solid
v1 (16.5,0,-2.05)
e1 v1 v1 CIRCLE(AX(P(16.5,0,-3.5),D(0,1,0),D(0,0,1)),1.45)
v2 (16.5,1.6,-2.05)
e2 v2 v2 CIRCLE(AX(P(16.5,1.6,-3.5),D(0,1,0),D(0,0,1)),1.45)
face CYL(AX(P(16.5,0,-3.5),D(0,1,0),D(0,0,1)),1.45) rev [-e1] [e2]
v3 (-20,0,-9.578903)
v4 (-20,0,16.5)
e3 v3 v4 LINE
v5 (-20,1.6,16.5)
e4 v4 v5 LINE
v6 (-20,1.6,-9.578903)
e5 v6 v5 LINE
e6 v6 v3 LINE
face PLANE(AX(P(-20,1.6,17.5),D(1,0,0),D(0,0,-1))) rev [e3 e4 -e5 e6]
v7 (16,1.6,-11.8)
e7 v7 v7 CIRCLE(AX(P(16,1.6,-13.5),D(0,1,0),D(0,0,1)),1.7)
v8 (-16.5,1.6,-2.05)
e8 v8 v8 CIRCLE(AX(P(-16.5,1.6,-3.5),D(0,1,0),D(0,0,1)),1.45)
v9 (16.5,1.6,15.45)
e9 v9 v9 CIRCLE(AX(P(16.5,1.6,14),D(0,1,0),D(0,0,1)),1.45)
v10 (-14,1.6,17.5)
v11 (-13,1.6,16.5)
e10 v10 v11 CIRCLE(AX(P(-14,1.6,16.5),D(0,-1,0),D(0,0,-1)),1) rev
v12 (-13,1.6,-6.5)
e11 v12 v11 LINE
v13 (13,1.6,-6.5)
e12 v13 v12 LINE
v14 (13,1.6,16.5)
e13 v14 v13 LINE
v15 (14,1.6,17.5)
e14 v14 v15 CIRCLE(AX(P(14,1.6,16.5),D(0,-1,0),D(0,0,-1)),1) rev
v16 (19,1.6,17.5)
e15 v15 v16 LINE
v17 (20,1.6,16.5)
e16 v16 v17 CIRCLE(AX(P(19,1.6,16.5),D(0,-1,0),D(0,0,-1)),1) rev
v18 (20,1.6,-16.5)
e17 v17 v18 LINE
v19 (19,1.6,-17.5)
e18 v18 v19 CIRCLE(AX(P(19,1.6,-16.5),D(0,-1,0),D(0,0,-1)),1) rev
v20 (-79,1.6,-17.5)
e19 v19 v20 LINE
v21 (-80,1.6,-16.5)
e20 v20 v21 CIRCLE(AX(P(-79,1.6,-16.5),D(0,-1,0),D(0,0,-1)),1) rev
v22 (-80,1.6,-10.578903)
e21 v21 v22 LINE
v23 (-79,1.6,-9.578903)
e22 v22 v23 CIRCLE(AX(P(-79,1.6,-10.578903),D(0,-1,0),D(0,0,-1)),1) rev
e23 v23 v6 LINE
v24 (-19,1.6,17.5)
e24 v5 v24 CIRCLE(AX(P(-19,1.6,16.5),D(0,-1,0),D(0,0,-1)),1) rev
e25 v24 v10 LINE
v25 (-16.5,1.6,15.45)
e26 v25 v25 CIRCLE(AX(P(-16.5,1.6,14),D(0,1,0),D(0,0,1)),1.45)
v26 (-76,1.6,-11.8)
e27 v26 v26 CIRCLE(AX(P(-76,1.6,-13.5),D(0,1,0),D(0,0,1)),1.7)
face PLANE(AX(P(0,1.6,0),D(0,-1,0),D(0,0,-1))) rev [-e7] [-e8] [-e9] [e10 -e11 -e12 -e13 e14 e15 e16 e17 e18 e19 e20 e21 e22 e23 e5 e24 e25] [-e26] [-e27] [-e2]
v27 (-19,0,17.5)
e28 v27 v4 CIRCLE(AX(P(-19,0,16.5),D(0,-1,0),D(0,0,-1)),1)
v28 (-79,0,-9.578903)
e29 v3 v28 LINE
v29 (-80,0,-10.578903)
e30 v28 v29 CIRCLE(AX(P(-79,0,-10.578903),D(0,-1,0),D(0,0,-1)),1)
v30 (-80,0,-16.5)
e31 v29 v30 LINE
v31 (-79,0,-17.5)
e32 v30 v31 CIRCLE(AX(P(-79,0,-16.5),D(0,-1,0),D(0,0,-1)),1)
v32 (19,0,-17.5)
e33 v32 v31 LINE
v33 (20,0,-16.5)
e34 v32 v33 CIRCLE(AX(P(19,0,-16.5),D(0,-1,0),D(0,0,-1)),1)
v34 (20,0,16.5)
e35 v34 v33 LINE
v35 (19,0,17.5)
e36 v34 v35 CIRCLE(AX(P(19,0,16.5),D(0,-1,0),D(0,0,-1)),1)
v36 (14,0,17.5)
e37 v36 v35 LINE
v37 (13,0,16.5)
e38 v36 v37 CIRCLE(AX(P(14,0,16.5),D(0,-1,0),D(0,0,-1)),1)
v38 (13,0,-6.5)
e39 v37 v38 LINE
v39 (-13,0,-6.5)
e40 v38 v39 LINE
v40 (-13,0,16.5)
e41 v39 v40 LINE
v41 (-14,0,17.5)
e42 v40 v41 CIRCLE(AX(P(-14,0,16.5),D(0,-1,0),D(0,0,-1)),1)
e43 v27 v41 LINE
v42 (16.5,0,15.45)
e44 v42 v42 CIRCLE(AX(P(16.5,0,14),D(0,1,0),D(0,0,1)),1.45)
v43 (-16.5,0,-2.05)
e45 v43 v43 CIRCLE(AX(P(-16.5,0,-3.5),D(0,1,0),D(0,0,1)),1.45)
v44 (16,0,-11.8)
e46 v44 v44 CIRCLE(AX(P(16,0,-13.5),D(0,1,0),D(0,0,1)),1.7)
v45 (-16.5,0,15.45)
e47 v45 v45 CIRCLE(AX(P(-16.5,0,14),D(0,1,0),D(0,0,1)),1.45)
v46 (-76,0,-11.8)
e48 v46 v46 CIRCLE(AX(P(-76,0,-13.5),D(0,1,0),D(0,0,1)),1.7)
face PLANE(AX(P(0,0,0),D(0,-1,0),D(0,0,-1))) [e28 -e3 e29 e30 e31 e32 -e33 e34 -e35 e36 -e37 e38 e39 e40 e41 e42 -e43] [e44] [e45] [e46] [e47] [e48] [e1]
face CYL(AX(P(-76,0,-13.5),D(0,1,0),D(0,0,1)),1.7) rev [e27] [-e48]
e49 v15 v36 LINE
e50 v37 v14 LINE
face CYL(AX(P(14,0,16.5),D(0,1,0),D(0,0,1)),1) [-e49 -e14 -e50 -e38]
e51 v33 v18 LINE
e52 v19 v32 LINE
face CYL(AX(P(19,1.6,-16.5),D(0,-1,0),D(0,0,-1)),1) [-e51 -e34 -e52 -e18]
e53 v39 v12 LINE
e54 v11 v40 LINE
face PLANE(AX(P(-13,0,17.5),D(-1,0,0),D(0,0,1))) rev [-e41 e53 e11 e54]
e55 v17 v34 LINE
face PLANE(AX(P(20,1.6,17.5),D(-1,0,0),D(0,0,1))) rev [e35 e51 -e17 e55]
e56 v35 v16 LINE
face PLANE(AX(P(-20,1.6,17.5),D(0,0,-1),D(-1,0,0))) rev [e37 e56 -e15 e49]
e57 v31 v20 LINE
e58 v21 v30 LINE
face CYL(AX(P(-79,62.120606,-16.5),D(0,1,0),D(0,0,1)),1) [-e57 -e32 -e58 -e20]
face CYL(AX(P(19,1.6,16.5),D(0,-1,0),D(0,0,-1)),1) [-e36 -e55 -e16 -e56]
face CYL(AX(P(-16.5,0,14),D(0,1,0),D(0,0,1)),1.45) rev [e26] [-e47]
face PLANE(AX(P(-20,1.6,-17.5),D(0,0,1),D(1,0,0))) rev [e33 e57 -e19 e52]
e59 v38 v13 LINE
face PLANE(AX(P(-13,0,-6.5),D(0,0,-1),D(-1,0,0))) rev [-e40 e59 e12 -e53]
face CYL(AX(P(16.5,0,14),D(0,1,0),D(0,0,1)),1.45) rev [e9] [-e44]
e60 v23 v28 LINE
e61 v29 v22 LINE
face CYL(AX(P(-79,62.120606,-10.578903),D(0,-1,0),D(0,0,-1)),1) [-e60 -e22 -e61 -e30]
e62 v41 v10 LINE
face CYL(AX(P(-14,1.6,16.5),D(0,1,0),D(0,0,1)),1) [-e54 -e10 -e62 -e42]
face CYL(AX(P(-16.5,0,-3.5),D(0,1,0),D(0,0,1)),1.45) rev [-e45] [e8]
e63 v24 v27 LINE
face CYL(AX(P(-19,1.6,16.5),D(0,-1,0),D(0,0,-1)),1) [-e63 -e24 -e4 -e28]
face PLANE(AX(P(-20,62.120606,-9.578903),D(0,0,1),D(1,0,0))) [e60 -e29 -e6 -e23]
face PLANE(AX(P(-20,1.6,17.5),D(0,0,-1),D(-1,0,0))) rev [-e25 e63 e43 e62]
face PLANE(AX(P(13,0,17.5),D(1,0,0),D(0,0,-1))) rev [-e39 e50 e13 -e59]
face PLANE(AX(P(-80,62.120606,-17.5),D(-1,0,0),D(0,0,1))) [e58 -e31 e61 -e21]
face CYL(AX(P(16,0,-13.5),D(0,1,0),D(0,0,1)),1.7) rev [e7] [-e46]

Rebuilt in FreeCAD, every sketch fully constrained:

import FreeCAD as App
import Part
import Sketcher
from FreeCAD import Vector


def edges_at(feature, points):
    """Names of the edges that pass closest to the given points."""
    edges = feature.Shape.Edges
    near = lambda p: min(range(len(edges)), key=lambda i: edges[i].distToShape(Part.Vertex(*p))[0])
    return sorted({f"Edge{near(p) + 1}" for p in points})

doc = App.newDocument("Part")
body = doc.addObject("PartDesign::Body", "Body")

# Sketch on XZ plane
sketch1 = doc.addObject("Sketcher::SketchObject", "Sketch")
body.addObject(sketch1)
sketch1.AttachmentSupport = (doc.XZ_Plane, [""])
sketch1.MapMode = "FlatFace"
sketch1.addGeometry([
    Part.LineSegment(Vector(-20, -17.5, 0), Vector(-20, 17.5, 0)),
    Part.LineSegment(Vector(-20, 17.5, 0), Vector(20, 17.5, 0)),
    Part.LineSegment(Vector(20, 17.5, 0), Vector(20, -17.5, 0)),
    Part.LineSegment(Vector(20, -17.5, 0), Vector(-20, -17.5, 0)),
], False)
sketch1.addConstraint([
    Sketcher.Constraint("Coincident", 0, 2, 1, 1),
    Sketcher.Constraint("Coincident", 1, 2, 2, 1),
    Sketcher.Constraint("Coincident", 2, 2, 3, 1),
    Sketcher.Constraint("Coincident", 3, 2, 0, 1),
    Sketcher.Constraint("Vertical", 0),
    Sketcher.Constraint("Horizontal", 1),
    Sketcher.Constraint("Vertical", 2),
    Sketcher.Constraint("Horizontal", 3),
    Sketcher.Constraint("Symmetric", 0, 2, 2, 2, -1, 1),
    Sketcher.Constraint("DistanceX", 1, 1, 1, 2, 40.0),
    Sketcher.Constraint("DistanceY", 0, 1, 0, 2, 35.0),
])
pad1 = doc.addObject("PartDesign::Pad", "Pad")
body.addObject(pad1)
pad1.Profile = sketch1
pad1.Length = 1.6
pad1.Reversed = True

# Sketch on XZ plane
sketch2 = doc.addObject("Sketcher::SketchObject", "Sketch001")
body.addObject(sketch2)
sketch2.AttachmentSupport = (doc.XZ_Plane, [""])
sketch2.MapMode = "FlatFace"
sketch2.AttachmentOffset = App.Placement(Vector(0, 0, -1.6), App.Rotation())
sketch2.addGeometry([
    Part.Circle(Vector(-16.5, -3.5, 0), Vector(0, 0, 1), 1.45),  # 0
    Part.Circle(Vector(-16.5, 14, 0), Vector(0, 0, 1), 1.45),  # 1
    Part.Circle(Vector(16.5, -3.5, 0), Vector(0, 0, 1), 1.45),  # 2
    Part.Circle(Vector(16.5, 14, 0), Vector(0, 0, 1), 1.45),  # 3
    Part.LineSegment(Vector(-13, -6.5, 0), Vector(-13, 17.5, 0)),  # 4
    Part.LineSegment(Vector(-13, 17.5, 0), Vector(13, 17.5, 0)),  # 5
    Part.LineSegment(Vector(13, 17.5, 0), Vector(13, -6.5, 0)),  # 6
    Part.LineSegment(Vector(13, -6.5, 0), Vector(-13, -6.5, 0)),  # 7
], False)
sketch2.addConstraint([
    Sketcher.Constraint("Coincident", 4, 2, 5, 1),
    Sketcher.Constraint("Coincident", 5, 2, 6, 1),
    Sketcher.Constraint("Coincident", 6, 2, 7, 1),
    Sketcher.Constraint("Coincident", 7, 2, 4, 1),
    Sketcher.Constraint("Vertical", 4),
    Sketcher.Constraint("Horizontal", 5),
    Sketcher.Constraint("Vertical", 6),
    Sketcher.Constraint("Horizontal", 7),
    Sketcher.Constraint("Equal", 0, 1),
    Sketcher.Constraint("Equal", 1, 2),
    Sketcher.Constraint("Equal", 2, 3),
    Sketcher.Constraint("Symmetric", 0, 3, 2, 3, -2),
    Sketcher.Constraint("Symmetric", 1, 3, 3, 3, -2),
    Sketcher.Constraint("Vertical", 0, 3, 1, 3),
    Sketcher.Constraint("Diameter", 0, 2.9),
    Sketcher.Constraint("DistanceX", 5, 1, 5, 2, 26.0),
    Sketcher.Constraint("DistanceY", 4, 1, 4, 2, 24.0),
    Sketcher.Constraint("DistanceY", -1, 1, 1, 3, 14.0),
    Sketcher.Constraint("DistanceX", 4, 2, -1, 1, 13.0),
    Sketcher.Constraint("DistanceX", 0, 3, 2, 3, 33.0),
    Sketcher.Constraint("DistanceY", 0, 3, 4, 2, 21.0),
    Sketcher.Constraint("DistanceY", 0, 3, -1, 1, 3.5),
])
pocket1 = doc.addObject("PartDesign::Pocket", "Pocket")
body.addObject(pocket1)
pocket1.Profile = sketch2
pocket1.Type = "ThroughAll"
pocket1.Reversed = True

# Sketch on XZ plane
sketch3 = doc.addObject("Sketcher::SketchObject", "Sketch002")
body.addObject(sketch3)
sketch3.AttachmentSupport = (doc.XZ_Plane, [""])
sketch3.MapMode = "FlatFace"
sketch3.addGeometry([
    Part.LineSegment(Vector(-80, -9.578903, 0), Vector(-80, -17.5, 0)),
    Part.LineSegment(Vector(-80, -17.5, 0), Vector(-20, -17.5, 0)),
    Part.LineSegment(Vector(-20, -17.5, 0), Vector(-20, -9.578903, 0)),
    Part.LineSegment(Vector(-20, -9.578903, 0), Vector(-80, -9.578903, 0)),
], False)
sketch3.addConstraint([
    Sketcher.Constraint("Coincident", 0, 2, 1, 1),
    Sketcher.Constraint("Coincident", 1, 2, 2, 1),
    Sketcher.Constraint("Coincident", 2, 2, 3, 1),
    Sketcher.Constraint("Coincident", 3, 2, 0, 1),
    Sketcher.Constraint("Vertical", 0),
    Sketcher.Constraint("Horizontal", 1),
    Sketcher.Constraint("Vertical", 2),
    Sketcher.Constraint("Horizontal", 3),
    Sketcher.Constraint("DistanceX", 1, 1, 1, 2, 60.0),
    Sketcher.Constraint("DistanceX", 0, 2, -1, 1, 80.0),
    Sketcher.Constraint("DistanceY", 0, 2, -1, 1, 17.5),
    Sketcher.Constraint("DistanceY", 0, 2, 0, 1, 7.921097),
])
pad2 = doc.addObject("PartDesign::Pad", "Pad001")
body.addObject(pad2)
pad2.Profile = sketch3
pad2.Length = 1.6
pad2.Reversed = True

# Sketch on XZ plane
sketch4 = doc.addObject("Sketcher::SketchObject", "Sketch003")
body.addObject(sketch4)
sketch4.AttachmentSupport = (doc.XZ_Plane, [""])
sketch4.MapMode = "FlatFace"
sketch4.AttachmentOffset = App.Placement(Vector(0, 0, -1.6), App.Rotation())
sketch4.addGeometry([
    Part.Circle(Vector(16, -13.5, 0), Vector(0, 0, 1), 1.7),
    Part.Circle(Vector(-76, -13.5, 0), Vector(0, 0, 1), 1.7),
], False)
sketch4.addConstraint([
    Sketcher.Constraint("Equal", 0, 1),
    Sketcher.Constraint("Horizontal", 0, 3, 1, 3),
    Sketcher.Constraint("Diameter", 0, 3.4),
    Sketcher.Constraint("DistanceX", -1, 1, 0, 3, 16.0),
    Sketcher.Constraint("DistanceX", 1, 3, -1, 1, 76.0),
    Sketcher.Constraint("DistanceY", 0, 3, -1, 1, 13.5),
])
pocket2 = doc.addObject("PartDesign::Pocket", "Pocket001")
body.addObject(pocket2)
pocket2.Profile = sketch4
pocket2.Type = "ThroughAll"
pocket2.Reversed = True
doc.recompute()

fillet = doc.addObject("PartDesign::Fillet", "Fillet")
body.addObject(fillet)
fillet.Base = (pocket2, edges_at(pocket2, [
    (-13, 0.8, 17.5),
    (13, 0.8, 17.5),
    (-80, 0.8, -17.5),
    (-80, 0.8, -9.579),
    (20, 0.8, 17.5),
    (-20, 0.8, 17.5),
    (20, 0.8, -17.5),
]))
fillet.Radius = 1

doc.recompute()
